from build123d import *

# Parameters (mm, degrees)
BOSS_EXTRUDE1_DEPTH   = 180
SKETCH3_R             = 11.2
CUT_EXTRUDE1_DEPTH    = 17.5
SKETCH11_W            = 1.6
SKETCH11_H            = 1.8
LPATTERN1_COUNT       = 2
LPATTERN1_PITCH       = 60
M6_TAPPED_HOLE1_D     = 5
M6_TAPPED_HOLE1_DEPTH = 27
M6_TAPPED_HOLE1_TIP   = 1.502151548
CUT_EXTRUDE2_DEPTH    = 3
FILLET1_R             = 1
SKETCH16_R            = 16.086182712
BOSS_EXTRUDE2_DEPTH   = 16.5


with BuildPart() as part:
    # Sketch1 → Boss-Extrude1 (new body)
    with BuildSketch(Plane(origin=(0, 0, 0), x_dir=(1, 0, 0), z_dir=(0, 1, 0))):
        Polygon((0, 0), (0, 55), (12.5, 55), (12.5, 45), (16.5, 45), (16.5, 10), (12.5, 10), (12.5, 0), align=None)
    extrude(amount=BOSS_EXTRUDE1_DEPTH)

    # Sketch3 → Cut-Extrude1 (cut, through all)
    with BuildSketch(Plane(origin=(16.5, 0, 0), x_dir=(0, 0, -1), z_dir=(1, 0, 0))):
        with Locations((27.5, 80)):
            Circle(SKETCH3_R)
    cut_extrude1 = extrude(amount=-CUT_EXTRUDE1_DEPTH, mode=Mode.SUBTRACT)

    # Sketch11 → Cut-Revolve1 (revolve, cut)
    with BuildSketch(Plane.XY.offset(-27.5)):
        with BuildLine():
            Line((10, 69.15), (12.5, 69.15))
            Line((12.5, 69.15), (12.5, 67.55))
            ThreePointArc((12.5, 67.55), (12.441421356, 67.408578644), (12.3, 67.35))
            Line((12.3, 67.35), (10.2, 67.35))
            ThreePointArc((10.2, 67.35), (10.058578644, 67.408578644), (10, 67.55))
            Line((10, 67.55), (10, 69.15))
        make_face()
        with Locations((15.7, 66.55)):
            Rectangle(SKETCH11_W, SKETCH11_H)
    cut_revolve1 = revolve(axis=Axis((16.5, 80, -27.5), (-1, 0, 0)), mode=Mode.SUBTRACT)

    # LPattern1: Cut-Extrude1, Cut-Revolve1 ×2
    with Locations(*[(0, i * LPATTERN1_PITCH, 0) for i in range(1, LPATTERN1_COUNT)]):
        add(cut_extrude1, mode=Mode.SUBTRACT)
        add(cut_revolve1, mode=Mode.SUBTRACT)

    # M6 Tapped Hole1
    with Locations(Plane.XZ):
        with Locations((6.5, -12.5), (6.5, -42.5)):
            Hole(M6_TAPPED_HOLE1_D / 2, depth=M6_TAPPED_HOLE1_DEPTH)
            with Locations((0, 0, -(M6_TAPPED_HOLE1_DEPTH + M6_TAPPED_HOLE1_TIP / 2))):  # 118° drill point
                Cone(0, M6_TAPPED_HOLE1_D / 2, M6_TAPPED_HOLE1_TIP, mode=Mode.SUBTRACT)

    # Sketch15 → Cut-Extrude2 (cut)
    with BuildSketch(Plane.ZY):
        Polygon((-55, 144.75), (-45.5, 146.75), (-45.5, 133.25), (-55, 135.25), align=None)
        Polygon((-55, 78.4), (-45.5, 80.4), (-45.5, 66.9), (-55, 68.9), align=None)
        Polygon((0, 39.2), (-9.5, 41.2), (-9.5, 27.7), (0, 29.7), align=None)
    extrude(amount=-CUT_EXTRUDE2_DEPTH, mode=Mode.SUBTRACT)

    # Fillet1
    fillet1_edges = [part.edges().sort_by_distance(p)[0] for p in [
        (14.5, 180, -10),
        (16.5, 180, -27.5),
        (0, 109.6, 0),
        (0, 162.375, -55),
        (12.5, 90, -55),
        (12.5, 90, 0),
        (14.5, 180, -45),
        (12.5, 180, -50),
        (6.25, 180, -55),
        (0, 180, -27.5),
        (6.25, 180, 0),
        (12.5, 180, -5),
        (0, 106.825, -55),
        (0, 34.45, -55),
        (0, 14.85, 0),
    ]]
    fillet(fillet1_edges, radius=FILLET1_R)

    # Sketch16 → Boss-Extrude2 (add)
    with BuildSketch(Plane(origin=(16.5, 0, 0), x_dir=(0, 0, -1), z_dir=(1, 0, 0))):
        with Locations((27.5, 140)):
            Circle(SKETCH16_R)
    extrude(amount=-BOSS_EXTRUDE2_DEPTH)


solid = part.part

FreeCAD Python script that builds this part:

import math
import FreeCAD as App
import Part
import Sketcher
from FreeCAD import Vector
Q = App.Units.Quantity


def edges_at(feature, points):
    """Names of the edges that pass closest to the given points."""
    edges = feature.Shape.Edges
    near = lambda p: min(range(len(edges)), key=lambda i: edges[i].distToShape(Part.Vertex(*p))[0])
    return sorted({f"Edge{near(p) + 1}" for p in points})

doc = App.newDocument("Part")
params = doc.addObject("Spreadsheet::Sheet", "Params")
for row, (alias, value) in enumerate([
    ("sketch1_width", "4 mm"),
    ("sketch1_height", "55 mm"),
    ("sketch1_height2", "10 mm"),
    ("sketch1_width2", "12.5 mm"),
    ("pad1_length", "180 mm"),
    ("sketch2_diameter", "22.4 mm"),
    ("sketch3_radius", "0.2 mm"),
    ("sketch3_width", "2.5 mm"),
    ("sketch3_width2", "1.6 mm"),
    ("sketch3_width3", "6.5 mm"),
    ("sketch3_height", "1.8 mm"),
    ("groove_angle", "360 deg"),
    ("linearpattern_pitch", "60 mm"),
    ("sketch4_diameter", "5 mm"),
    ("hole_diameter", "5 mm"),
    ("hole_depth", "27 mm"),
    ("sketch5_width", "9.5 mm"),
    ("sketch5_width2", "13.5 mm"),
    ("pocket2_length", "3 mm"),
    ("fillet_radius", "1 mm"),
    ("pad2_length", "16.5 mm"),
], start=1):
    params.set(f"A{row}", alias)
    params.set(f"B{row}", "=" + value)
    params.setAlias(f"B{row}", alias)

body = doc.addObject("PartDesign::Body", "Body")

# Sketch on XZ plane
sketch1 = body.newObject("Sketcher::SketchObject", "Sketch")
sketch1.AttachmentSupport = (doc.getObject("XZ_Plane"), [""])
sketch1.MapMode = "FlatFace"
sketch1.addGeometry([
    Part.LineSegment(Vector(0, -55, 0), Vector(0, 0, 0)),  # 0
    Part.LineSegment(Vector(0, 0, 0), Vector(12.5, 0, 0)),  # 1
    Part.LineSegment(Vector(12.5, 0, 0), Vector(12.5, -10, 0)),  # 2
    Part.LineSegment(Vector(12.5, -10, 0), Vector(16.5, -10, 0)),  # 3
    Part.LineSegment(Vector(16.5, -10, 0), Vector(16.5, -45, 0)),  # 4
    Part.LineSegment(Vector(16.5, -45, 0), Vector(12.5, -45, 0)),  # 5
    Part.LineSegment(Vector(12.5, -45, 0), Vector(12.5, -55, 0)),  # 6
    Part.LineSegment(Vector(12.5, -55, 0), Vector(0, -55, 0)),  # 7
], False)
sketch1.addConstraint([
    Sketcher.Constraint("Coincident", 0, 2, 1, 1),
    Sketcher.Constraint("Coincident", 1, 2, 2, 1),
    Sketcher.Constraint("Coincident", 2, 2, 3, 1),
    Sketcher.Constraint("Coincident", 3, 2, 4, 1),
    Sketcher.Constraint("Coincident", 4, 2, 5, 1),
    Sketcher.Constraint("Coincident", 5, 2, 6, 1),
    Sketcher.Constraint("Coincident", 6, 2, 7, 1),
    Sketcher.Constraint("Coincident", 7, 2, 0, 1),
    Sketcher.Constraint("Vertical", 0),
    Sketcher.Constraint("Horizontal", 1),
    Sketcher.Constraint("Vertical", 2),
    Sketcher.Constraint("Horizontal", 3),
    Sketcher.Constraint("Vertical", 4),
    Sketcher.Constraint("Horizontal", 5),
    Sketcher.Constraint("Vertical", 6),
    Sketcher.Constraint("Horizontal", 7),
    Sketcher.Constraint("Coincident", 0, 2, -1, 1),
    Sketcher.Constraint("Vertical", 2, 2, 5, 2),
    Sketcher.Constraint("Equal", 2, 6),
    Sketcher.Constraint("DistanceX", 3, 1, 3, 2, Q("4 mm")),
    Sketcher.Constraint("DistanceY", 0, 1, 0, 2, Q("55 mm")),
    Sketcher.Constraint("DistanceY", 2, 2, 2, 1, Q("10 mm")),
    Sketcher.Constraint("DistanceX", 1, 1, 1, 2, Q("12.5 mm")),
])
sketch1.setExpression("Constraints[19]", "Params.sketch1_width")
sketch1.setExpression("Constraints[20]", "Params.sketch1_height")
sketch1.setExpression("Constraints[21]", "Params.sketch1_height2")
sketch1.setExpression("Constraints[22]", "Params.sketch1_width2")
pad1 = body.newObject("PartDesign::Pad", "Pad")
pad1.Profile = sketch1
pad1.setExpression("Length", "Params.pad1_length")
pad1.Reversed = True

# Sketch on YZ plane
sketch2 = body.newObject("Sketcher::SketchObject", "Sketch001")
sketch2.AttachmentSupport = (doc.getObject("YZ_Plane"), [""])
sketch2.MapMode = "FlatFace"
sketch2.AttachmentOffset = App.Placement(Vector(0, 0, 16.5), App.Rotation())
sketch2.addGeometry(Part.Circle(Vector(80, -27.5, 0), Vector(0, 0, 1), 11.2), False)
sketch2.addConstraint([
    Sketcher.Constraint("Diameter", 0, Q("22.4 mm")),
    Sketcher.Constraint("DistanceX", -1, 1, 0, 3, Q("80 mm")),
    Sketcher.Constraint("DistanceY", 0, 3, -1, 1, Q("27.5 mm")),
])
sketch2.setExpression("Constraints[0]", "Params.sketch2_diameter")
pocket1 = body.newObject("PartDesign::Pocket", "Pocket")
pocket1.Profile = sketch2
pocket1.Type = "ThroughAll"

# Sketch on XY plane
sketch3 = body.newObject("Sketcher::SketchObject", "Sketch002")
sketch3.AttachmentSupport = (doc.getObject("XY_Plane"), [""])
sketch3.MapMode = "FlatFace"
sketch3.AttachmentOffset = App.Placement(Vector(0, 0, -27.5), App.Rotation())
sketch3.addGeometry([
    Part.LineSegment(Vector(12.5, 69.15, 0), Vector(10, 69.15, 0)),  # 0
    Part.LineSegment(Vector(10, 69.15, 0), Vector(10, 67.55, 0)),  # 1
    Part.ArcOfCircle(Part.Circle(Vector(10.2, 67.55, 0), Vector(0, 0, 1), 0.2), math.radians(-180), math.radians(-90)),  # 2
    Part.LineSegment(Vector(10.2, 67.35, 0), Vector(12.3, 67.35, 0)),  # 3
    Part.ArcOfCircle(Part.Circle(Vector(12.3, 67.55, 0), Vector(0, 0, 1), 0.2), math.radians(-90), math.radians(0)),  # 4
    Part.LineSegment(Vector(12.5, 67.55, 0), Vector(12.5, 69.15, 0)),  # 5
    Part.LineSegment(Vector(14.9, 67.45, 0), Vector(14.9, 65.65, 0)),  # 6
    Part.LineSegment(Vector(14.9, 65.65, 0), Vector(16.5, 65.65, 0)),  # 7
    Part.LineSegment(Vector(16.5, 65.65, 0), Vector(16.5, 67.45, 0)),  # 8
    Part.LineSegment(Vector(16.5, 67.45, 0), Vector(14.9, 67.45, 0)),  # 9
], False)
sketch3.addGeometry(Part.LineSegment(Vector(16.5, 80, 0), Vector(10, 80, 0)), True)  # axis
sketch3.addConstraint([
    Sketcher.Constraint("Coincident", 0, 2, 1, 1),
    Sketcher.Constraint("Tangent", 1, 2, 2, 1),
    Sketcher.Constraint("Tangent", 2, 2, 3, 1),
    Sketcher.Constraint("Tangent", 3, 2, 4, 1),
    Sketcher.Constraint("Tangent", 4, 2, 5, 1),
    Sketcher.Constraint("Coincident", 5, 2, 0, 1),
    Sketcher.Constraint("Coincident", 6, 2, 7, 1),
    Sketcher.Constraint("Coincident", 7, 2, 8, 1),
    Sketcher.Constraint("Coincident", 8, 2, 9, 1),
    Sketcher.Constraint("Coincident", 9, 2, 6, 1),
    Sketcher.Constraint("Horizontal", 0),
    Sketcher.Constraint("Vertical", 1),
    Sketcher.Constraint("Horizontal", 3),
    Sketcher.Constraint("Vertical", 5),
    Sketcher.Constraint("Vertical", 6),
    Sketcher.Constraint("Horizontal", 7),
    Sketcher.Constraint("Vertical", 8),
    Sketcher.Constraint("Horizontal", 9),
    Sketcher.Constraint("Horizontal", 10),
    Sketcher.Constraint("Equal", 2, 4),
    Sketcher.Constraint("Vertical", 8, 2, 10, 1),
    Sketcher.Constraint("Vertical", 1, 2, 10, 2),
    Sketcher.Constraint("Equal", 9, 1),
    Sketcher.Constraint("Radius", 2, Q("0.2 mm")),
    Sketcher.Constraint("DistanceX", 0, 2, 0, 1, Q("2.5 mm")),
    Sketcher.Constraint("DistanceX", 7, 1, 7, 2, Q("1.6 mm")),
    Sketcher.Constraint("DistanceX", 10, 2, 10, 1, Q("6.5 mm")),
    Sketcher.Constraint("DistanceY", 6, 2, 6, 1, Q("1.8 mm")),
    Sketcher.Constraint("DistanceX", -1, 1, 0, 2, Q("10 mm")),
    Sketcher.Constraint("DistanceY", -1, 1, 10, 1, Q("80 mm")),
    Sketcher.Constraint("DistanceY", 6, 2, 4, 2, Q("1.9 mm")),
    Sketcher.Constraint("DistanceY", -1, 1, 2, 3, Q("67.55 mm")),
])
sketch3.setExpression("Constraints[23]", "Params.sketch3_radius")
sketch3.setExpression("Constraints[24]", "Params.sketch3_width")
sketch3.setExpression("Constraints[25]", "Params.sketch3_width2")
sketch3.setExpression("Constraints[26]", "Params.sketch3_width3")
sketch3.setExpression("Constraints[27]", "Params.sketch3_height")
groove = body.newObject("PartDesign::Groove", "Groove")
groove.Profile = sketch3
groove.ReferenceAxis = (sketch3, ["Axis0"])
groove.setExpression("Angle", "Params.groove_angle")
doc.recompute()

linearpattern = body.newObject("PartDesign::LinearPattern", "LinearPattern")
linearpattern.Originals = [pocket1, groove]
linearpattern.Direction = (doc.getObject("Y_Axis"), [""])
linearpattern.Mode = "offset"
linearpattern.setExpression("Offset", "Params.linearpattern_pitch")
linearpattern.Occurrences = 2
body.Tip = linearpattern

# Sketch on XZ plane
sketch4 = body.newObject("Sketcher::SketchObject", "Sketch003")
sketch4.AttachmentSupport = (doc.getObject("XZ_Plane"), [""])
sketch4.MapMode = "FlatFace"
sketch4.addGeometry([
    Part.Circle(Vector(6.5, -12.5, 0), Vector(0, 0, 1), 2.5),
    Part.Circle(Vector(6.5, -42.5, 0), Vector(0, 0, 1), 2.5),
], False)
sketch4.addConstraint([
    Sketcher.Constraint("Equal", 0, 1),
    Sketcher.Constraint("Vertical", 0, 3, 1, 3),
    Sketcher.Constraint("Diameter", 0, Q("5 mm")),
    Sketcher.Constraint("DistanceY", 1, 3, 0, 3, Q("30 mm")),
    Sketcher.Constraint("DistanceX", -1, 1, 0, 3, Q("6.5 mm")),
    Sketcher.Constraint("DistanceY", 0, 3, -1, 1, Q("12.5 mm")),
])
sketch4.setExpression("Constraints[2]", "Params.sketch4_diameter")
doc.recompute()
hole = body.newObject("PartDesign::Hole", "Hole")
hole.Profile = sketch4
hole.ThreadType = "None"
hole.setExpression("Diameter", "Params.hole_diameter")
hole.DepthType = "Dimension"
hole.setExpression("Depth", "Params.hole_depth")
hole.DrillPoint = "Angled"
hole.DrillPointAngle = 118

# Sketch on YZ plane
sketch5 = body.newObject("Sketcher::SketchObject", "Sketch004")
sketch5.AttachmentSupport = (doc.getObject("YZ_Plane"), [""])
sketch5.MapMode = "FlatFace"
sketch5.addGeometry([
    Part.LineSegment(Vector(146.75, -45.5, 0), Vector(144.75, -55, 0)),  # 0
    Part.LineSegment(Vector(144.75, -55, 0), Vector(135.25, -55, 0)),  # 1
    Part.LineSegment(Vector(135.25, -55, 0), Vector(133.25, -45.5, 0)),  # 2
    Part.LineSegment(Vector(133.25, -45.5, 0), Vector(146.75, -45.5, 0)),  # 3
    Part.LineSegment(Vector(80.4, -45.5, 0), Vector(78.4, -55, 0)),  # 4
    Part.LineSegment(Vector(78.4, -55, 0), Vector(68.9, -55, 0)),  # 5
    Part.LineSegment(Vector(68.9, -55, 0), Vector(66.9, -45.5, 0)),  # 6
    Part.LineSegment(Vector(66.9, -45.5, 0), Vector(80.4, -45.5, 0)),  # 7
    Part.LineSegment(Vector(39.2, 0, 0), Vector(41.2, -9.5, 0)),  # 8
    Part.LineSegment(Vector(41.2, -9.5, 0), Vector(27.7, -9.5, 0)),  # 9
    Part.LineSegment(Vector(27.7, -9.5, 0), Vector(29.7, 0, 0)),  # 10
    Part.LineSegment(Vector(29.7, 0, 0), Vector(39.2, 0, 0)),  # 11
], False)
sketch5.addConstraint([
    Sketcher.Constraint("Coincident", 0, 2, 1, 1),
    Sketcher.Constraint("Coincident", 1, 2, 2, 1),
    Sketcher.Constraint("Coincident", 2, 2, 3, 1),
    Sketcher.Constraint("Coincident", 3, 2, 0, 1),
    Sketcher.Constraint("Coincident", 4, 2, 5, 1),
    Sketcher.Constraint("Coincident", 5, 2, 6, 1),
    Sketcher.Constraint("Coincident", 6, 2, 7, 1),
    Sketcher.Constraint("Coincident", 7, 2, 4, 1),
    Sketcher.Constraint("Coincident", 8, 2, 9, 1),
    Sketcher.Constraint("Coincident", 9, 2, 10, 1),
    Sketcher.Constraint("Coincident", 10, 2, 11, 1),
    Sketcher.Constraint("Coincident", 11, 2, 8, 1),
    Sketcher.Constraint("Horizontal", 1),
    Sketcher.Constraint("Horizontal", 3),
    Sketcher.Constraint("Horizontal", 5),
    Sketcher.Constraint("Horizontal", 7),
    Sketcher.Constraint("Horizontal", 9),
    Sketcher.Constraint("Horizontal", 11),
    Sketcher.Constraint("PointOnObject", 10, 2, -1),
    Sketcher.Constraint("Parallel", 0, 4),
    Sketcher.Constraint("Parallel", 2, 6),
    Sketcher.Constraint("Parallel", 6, 8),
    Sketcher.Constraint("Parallel", 4, 10),
    Sketcher.Constraint("Horizontal", 1, 2, 4, 2),
    Sketcher.Constraint("Horizontal", 3, 2, 6, 2),
    Sketcher.Constraint("Equal", 1, 5),
    Sketcher.Constraint("Equal", 7, 9),
    Sketcher.Constraint("Equal", 5, 11),
    Sketcher.Constraint("Equal", 0, 2),
    Sketcher.Constraint("DistanceX", 1, 2, 1, 1, Q("9.5 mm")),
    Sketcher.Constraint("DistanceX", 3, 1, 3, 2, Q("13.5 mm")),
    Sketcher.Constraint("DistanceY", 0, 2, -1, 1, Q("55 mm")),
    Sketcher.Constraint("DistanceY", 6, 2, 8, 2, Q("36 mm")),
    Sketcher.Constraint("DistanceX", -1, 1, 4, 2, Q("78.4 mm")),
    Sketcher.Constraint("DistanceX", -1, 1, 8, 2, Q("41.2 mm")),
    Sketcher.Constraint("DistanceX", -1, 1, 0, 2, Q("144.75 mm")),
])
sketch5.setExpression("Constraints[29]", "Params.sketch5_width")
sketch5.setExpression("Constraints[30]", "Params.sketch5_width2")
pocket2 = body.newObject("PartDesign::Pocket", "Pocket001")
pocket2.Profile = sketch5
pocket2.setExpression("Length", "Params.pocket2_length")
pocket2.Reversed = True
doc.recompute()

fillet = body.newObject("PartDesign::Fillet", "Fillet")
fillet.Base = (pocket2, edges_at(pocket2, [
    (14.5, 180, -10),
    (16.5, 180, -27.5),
    (0, 109.6, 0),
    (0, 162.375, -55),
    (12.5, 90, -55),
    (12.5, 90, 0),
    (14.5, 180, -45),
    (12.5, 180, -50),
    (6.25, 180, -55),
    (0, 180, -27.5),
    (6.25, 180, 0),
    (12.5, 180, -5),
    (0, 106.825, -55),
    (0, 34.45, -55),
    (0, 14.85, 0),
]))
fillet.setExpression("Radius", "Params.fillet_radius")

# Sketch on YZ plane
sketch6 = body.newObject("Sketcher::SketchObject", "Sketch005")
sketch6.AttachmentSupport = (doc.getObject("YZ_Plane"), [""])
sketch6.MapMode = "FlatFace"
sketch6.AttachmentOffset = App.Placement(Vector(0, 0, 16.5), App.Rotation())
sketch6.addGeometry(Part.Circle(Vector(140, -27.5, 0), Vector(0, 0, 1), 16.086183), False)
sketch6.addConstraint([
    Sketcher.Constraint("DistanceX", -1, 1, 0, 3, Q("140 mm")),
    Sketcher.Constraint("DistanceY", 0, 3, -1, 1, Q("27.5 mm")),
    Sketcher.Constraint("Diameter", 0, Q("32.172365 mm")),
])
pad2 = body.newObject("PartDesign::Pad", "Pad001")
pad2.Profile = sketch6
pad2.setExpression("Length", "Params.pad2_length")
pad2.Reversed = True

doc.recompute()
